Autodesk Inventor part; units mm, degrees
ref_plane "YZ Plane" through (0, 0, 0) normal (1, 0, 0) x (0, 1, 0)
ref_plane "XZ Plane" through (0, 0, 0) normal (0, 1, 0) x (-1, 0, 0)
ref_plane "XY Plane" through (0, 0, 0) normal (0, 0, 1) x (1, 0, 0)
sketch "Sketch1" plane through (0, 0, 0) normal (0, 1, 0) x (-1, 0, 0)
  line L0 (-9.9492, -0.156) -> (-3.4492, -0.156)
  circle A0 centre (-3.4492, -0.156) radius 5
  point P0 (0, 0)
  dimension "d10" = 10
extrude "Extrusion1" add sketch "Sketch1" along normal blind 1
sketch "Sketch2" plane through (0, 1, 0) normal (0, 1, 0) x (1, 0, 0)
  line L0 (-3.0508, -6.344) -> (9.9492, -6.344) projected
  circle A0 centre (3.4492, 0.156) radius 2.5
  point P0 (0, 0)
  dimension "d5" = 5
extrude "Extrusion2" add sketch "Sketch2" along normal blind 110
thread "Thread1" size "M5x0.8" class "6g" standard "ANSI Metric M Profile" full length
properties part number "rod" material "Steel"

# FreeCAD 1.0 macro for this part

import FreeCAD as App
import Part
import Sketcher

V = App.Vector
Q = App.Units.Quantity

doc = App.newDocument("Part")
params = doc.addObject("Spreadsheet::Sheet", "Params")
for row, (alias, value) in enumerate([
    ("sketch1_diameter", "10 mm"),
    ("pad1_length", "1 mm"),
    ("sketch2_diameter", "5 mm"),
    ("pad2_length", "110 mm"),
], start=1):
    params.set(f"A{row}", alias)
    params.set(f"B{row}", "=" + value)
    params.setAlias(f"B{row}", alias)

body = doc.addObject("PartDesign::Body", "Body")

# Sketch on XZ plane
sketch1 = body.newObject("Sketcher::SketchObject", "Sketch")
sketch1.AttachmentSupport = (doc.getObject("XZ_Plane"), [""])
sketch1.MapMode = "FlatFace"
sketch1.addGeometry(Part.Circle(V(3, 0, 0), V(0, 0, 1), 5), False)
sketch1.addConstraint(Sketcher.Constraint("Diameter", 0, Q("10 mm")))
sketch1.addConstraint(Sketcher.Constraint("DistanceY", 0, 3, -1, 1, Q("0.156 mm")))
sketch1.addConstraint(Sketcher.Constraint("DistanceX", -1, 1, 0, 3, Q("3.4492 mm")))
sketch1.setExpression("Constraints[0]", "Params.sketch1_diameter")
pad1 = body.newObject("PartDesign::Pad", "Pad")
pad1.Profile = sketch1
pad1.setExpression("Length", "Params.pad1_length")
pad1.Reversed = True

# Sketch on XZ plane
sketch2 = body.newObject("Sketcher::SketchObject", "Sketch001")
sketch2.AttachmentSupport = (doc.getObject("XZ_Plane"), [""])
sketch2.MapMode = "FlatFace"
sketch2.AttachmentOffset = App.Placement(V(0, 0, -1), App.Rotation())
sketch2.addGeometry(Part.Circle(V(3.4, -0.2, 0), V(0, 0, 1), 2.5), False)
sketch2.addConstraint(Sketcher.Constraint("Diameter", 0, Q("5 mm")))
sketch2.addConstraint(Sketcher.Constraint("DistanceY", 0, 3, -1, 1, Q("0.156 mm")))
sketch2.addConstraint(Sketcher.Constraint("DistanceX", -1, 1, 0, 3, Q("3.4492 mm")))
sketch2.setExpression("Constraints[0]", "Params.sketch2_diameter")
pad2 = body.newObject("PartDesign::Pad", "Pad001")
pad2.Profile = sketch2
pad2.setExpression("Length", "Params.pad2_length")
pad2.Reversed = True

doc.recompute()
